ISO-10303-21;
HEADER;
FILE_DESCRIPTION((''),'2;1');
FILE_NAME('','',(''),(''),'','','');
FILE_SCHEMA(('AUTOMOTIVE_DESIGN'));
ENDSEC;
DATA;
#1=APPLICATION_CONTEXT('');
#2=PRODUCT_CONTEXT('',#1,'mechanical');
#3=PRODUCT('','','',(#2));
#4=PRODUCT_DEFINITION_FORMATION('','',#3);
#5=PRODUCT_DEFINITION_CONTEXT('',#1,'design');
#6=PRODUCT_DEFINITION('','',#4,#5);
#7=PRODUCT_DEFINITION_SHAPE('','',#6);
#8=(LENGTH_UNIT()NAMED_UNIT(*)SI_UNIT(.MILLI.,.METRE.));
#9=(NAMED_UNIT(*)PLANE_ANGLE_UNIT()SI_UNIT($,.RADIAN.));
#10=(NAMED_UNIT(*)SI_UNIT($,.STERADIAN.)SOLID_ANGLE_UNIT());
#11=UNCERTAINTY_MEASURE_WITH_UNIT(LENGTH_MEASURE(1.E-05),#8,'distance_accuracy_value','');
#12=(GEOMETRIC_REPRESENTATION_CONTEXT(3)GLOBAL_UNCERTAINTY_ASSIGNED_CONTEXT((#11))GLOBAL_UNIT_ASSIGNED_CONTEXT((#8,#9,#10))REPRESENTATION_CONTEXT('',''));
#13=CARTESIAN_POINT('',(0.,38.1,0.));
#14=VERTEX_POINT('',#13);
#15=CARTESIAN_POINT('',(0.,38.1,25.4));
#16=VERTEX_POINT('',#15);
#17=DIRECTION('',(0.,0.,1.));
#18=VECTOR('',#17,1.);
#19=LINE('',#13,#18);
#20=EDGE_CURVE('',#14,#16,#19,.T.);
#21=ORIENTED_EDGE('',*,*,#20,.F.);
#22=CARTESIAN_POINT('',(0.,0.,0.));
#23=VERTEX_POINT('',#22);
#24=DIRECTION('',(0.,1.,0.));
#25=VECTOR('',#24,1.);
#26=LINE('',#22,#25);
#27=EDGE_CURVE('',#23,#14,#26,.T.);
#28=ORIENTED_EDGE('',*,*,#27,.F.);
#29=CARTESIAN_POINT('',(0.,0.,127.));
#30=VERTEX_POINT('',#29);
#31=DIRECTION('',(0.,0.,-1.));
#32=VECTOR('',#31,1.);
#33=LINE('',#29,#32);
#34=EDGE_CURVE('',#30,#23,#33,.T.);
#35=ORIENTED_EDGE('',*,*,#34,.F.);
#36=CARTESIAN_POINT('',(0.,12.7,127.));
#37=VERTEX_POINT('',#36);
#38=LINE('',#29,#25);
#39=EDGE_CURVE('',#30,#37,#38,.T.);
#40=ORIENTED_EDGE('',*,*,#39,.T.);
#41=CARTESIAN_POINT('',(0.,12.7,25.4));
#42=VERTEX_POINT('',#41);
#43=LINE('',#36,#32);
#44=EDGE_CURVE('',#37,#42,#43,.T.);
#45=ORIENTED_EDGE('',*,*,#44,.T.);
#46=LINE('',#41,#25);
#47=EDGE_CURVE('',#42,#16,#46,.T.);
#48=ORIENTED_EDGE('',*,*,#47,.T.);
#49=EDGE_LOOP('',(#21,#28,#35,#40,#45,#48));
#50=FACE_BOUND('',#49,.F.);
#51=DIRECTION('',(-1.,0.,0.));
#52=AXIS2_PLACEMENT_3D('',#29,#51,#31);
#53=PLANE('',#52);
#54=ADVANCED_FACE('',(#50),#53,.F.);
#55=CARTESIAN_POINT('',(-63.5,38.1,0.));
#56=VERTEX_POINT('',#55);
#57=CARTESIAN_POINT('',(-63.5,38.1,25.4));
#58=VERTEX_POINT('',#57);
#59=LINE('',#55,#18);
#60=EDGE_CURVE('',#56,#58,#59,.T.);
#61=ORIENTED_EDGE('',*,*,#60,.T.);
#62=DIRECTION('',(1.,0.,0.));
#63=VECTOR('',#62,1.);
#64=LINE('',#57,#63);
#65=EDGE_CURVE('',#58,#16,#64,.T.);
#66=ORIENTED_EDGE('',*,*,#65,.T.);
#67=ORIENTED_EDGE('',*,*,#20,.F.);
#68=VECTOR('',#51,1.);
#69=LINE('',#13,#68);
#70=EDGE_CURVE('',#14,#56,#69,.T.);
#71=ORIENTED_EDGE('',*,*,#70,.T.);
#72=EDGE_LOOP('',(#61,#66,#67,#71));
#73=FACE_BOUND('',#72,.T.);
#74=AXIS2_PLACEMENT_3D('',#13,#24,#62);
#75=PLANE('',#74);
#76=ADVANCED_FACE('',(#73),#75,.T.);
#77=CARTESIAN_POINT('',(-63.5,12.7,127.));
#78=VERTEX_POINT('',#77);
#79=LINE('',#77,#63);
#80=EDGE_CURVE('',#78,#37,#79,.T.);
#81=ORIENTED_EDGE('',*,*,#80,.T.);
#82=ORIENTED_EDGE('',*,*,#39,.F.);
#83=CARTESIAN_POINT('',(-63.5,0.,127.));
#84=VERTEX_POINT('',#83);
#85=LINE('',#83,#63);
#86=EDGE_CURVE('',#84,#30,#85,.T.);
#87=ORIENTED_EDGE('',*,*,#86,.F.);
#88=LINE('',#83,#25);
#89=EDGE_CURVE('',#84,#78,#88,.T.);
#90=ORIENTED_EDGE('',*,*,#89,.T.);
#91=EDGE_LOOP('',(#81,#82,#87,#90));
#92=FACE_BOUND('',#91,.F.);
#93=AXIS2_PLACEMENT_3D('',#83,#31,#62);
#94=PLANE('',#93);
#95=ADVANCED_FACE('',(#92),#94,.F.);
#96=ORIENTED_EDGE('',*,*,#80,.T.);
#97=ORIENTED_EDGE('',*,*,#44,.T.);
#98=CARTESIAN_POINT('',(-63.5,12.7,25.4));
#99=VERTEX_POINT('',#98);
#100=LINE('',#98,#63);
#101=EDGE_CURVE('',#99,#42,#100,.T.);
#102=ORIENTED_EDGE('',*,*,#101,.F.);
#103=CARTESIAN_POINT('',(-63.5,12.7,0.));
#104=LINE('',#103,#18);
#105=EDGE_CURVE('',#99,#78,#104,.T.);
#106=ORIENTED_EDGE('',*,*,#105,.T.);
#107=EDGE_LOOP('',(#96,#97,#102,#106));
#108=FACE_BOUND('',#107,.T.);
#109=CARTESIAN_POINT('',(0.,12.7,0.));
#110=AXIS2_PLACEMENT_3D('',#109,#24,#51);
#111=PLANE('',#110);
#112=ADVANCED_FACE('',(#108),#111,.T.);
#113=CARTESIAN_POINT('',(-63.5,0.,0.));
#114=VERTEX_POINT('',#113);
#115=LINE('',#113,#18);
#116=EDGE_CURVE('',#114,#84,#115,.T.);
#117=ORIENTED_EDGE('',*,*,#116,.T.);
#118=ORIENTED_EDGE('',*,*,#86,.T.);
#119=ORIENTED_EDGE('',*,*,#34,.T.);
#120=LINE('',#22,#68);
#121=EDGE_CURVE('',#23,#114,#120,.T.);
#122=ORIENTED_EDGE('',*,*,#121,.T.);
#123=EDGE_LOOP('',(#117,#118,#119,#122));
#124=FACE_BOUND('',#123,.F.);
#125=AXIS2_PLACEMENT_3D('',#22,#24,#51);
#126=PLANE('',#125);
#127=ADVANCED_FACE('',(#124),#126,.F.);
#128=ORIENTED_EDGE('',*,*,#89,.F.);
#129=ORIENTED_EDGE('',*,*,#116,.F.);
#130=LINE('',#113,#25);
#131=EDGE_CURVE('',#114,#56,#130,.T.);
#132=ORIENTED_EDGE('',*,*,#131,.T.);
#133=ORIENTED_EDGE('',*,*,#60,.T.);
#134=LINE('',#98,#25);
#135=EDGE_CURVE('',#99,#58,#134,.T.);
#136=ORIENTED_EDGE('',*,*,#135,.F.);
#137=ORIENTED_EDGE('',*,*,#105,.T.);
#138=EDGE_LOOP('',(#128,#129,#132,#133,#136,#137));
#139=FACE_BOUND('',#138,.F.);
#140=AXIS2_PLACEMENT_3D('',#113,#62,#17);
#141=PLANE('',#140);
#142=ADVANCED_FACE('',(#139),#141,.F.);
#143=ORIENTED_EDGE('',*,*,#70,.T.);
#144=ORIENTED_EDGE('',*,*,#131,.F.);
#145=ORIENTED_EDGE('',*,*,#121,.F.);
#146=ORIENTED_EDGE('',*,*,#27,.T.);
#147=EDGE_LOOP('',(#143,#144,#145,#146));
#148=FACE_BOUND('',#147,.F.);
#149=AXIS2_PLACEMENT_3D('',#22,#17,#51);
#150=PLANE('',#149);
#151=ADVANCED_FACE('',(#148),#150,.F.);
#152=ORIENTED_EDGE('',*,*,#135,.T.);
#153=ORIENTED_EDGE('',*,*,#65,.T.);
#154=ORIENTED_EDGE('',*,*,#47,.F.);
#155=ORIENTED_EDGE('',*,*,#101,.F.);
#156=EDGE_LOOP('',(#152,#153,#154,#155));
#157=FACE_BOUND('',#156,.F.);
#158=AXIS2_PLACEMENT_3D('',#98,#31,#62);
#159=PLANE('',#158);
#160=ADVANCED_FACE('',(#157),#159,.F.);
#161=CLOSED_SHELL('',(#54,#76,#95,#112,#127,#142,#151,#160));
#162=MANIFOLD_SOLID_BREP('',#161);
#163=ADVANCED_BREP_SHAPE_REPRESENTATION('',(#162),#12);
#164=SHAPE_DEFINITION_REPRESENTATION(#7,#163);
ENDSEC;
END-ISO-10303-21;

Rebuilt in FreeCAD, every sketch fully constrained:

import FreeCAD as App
import Part
import Sketcher
Q = App.Units.Quantity


def add_polygon(sketch, points):
    """Adds a closed chain of lines whose ends are joined by coincident constraints."""
    first, n = sketch.GeometryCount, len(points)
    for a, b in zip(points, points[1:] + points[:1]):
        sketch.addGeometry(Part.LineSegment(App.Vector(*a, 0), App.Vector(*b, 0)), False)
    for i in range(n):
        sketch.addConstraint(Sketcher.Constraint("Coincident", first + i, 2, first + (i + 1) % n, 1))

doc = App.newDocument("Part")
body = doc.addObject("PartDesign::Body", "Body")

# Sketch on XZ plane
sketch1 = body.newObject("Sketcher::SketchObject", "Sketch")
sketch1.AttachmentSupport = (doc.getObject("XZ_Plane"), [""])
sketch1.MapMode = "FlatFace"
add_polygon(sketch1, [(0, 127), (0, 0), (-63.5, 0), (-63.5, 127)])  # lines 0-3
sketch1.addConstraint([
    Sketcher.Constraint("Vertical", 0),
    Sketcher.Constraint("Horizontal", 1),
    Sketcher.Constraint("Vertical", 2),
    Sketcher.Constraint("Horizontal", 3),
    Sketcher.Constraint("Coincident", 0, 2, -1, 1),
    Sketcher.Constraint("DistanceY", 0, 2, 0, 1, Q("5 in")),
    Sketcher.Constraint("DistanceX", 1, 2, 1, 1, Q("2.5 in")),
])
pad1 = body.newObject("PartDesign::Pad", "Pad")
pad1.Profile = sketch1
pad1.Length = Q("0.5 in")
pad1.Reversed = True

# Sketch on XZ plane
sketch2 = body.newObject("Sketcher::SketchObject", "Sketch001")
sketch2.AttachmentSupport = (doc.getObject("XZ_Plane"), [""])
sketch2.MapMode = "FlatFace"
sketch2.AttachmentOffset = App.Placement(App.Vector(0, 0, -0.5 * 25.4), App.Rotation())
add_polygon(sketch2, [(0, 25.4), (0, 0), (-63.5, 0), (-63.5, 25.4)])  # lines 0-3
sketch2.addConstraint([
    Sketcher.Constraint("Vertical", 0),
    Sketcher.Constraint("Horizontal", 1),
    Sketcher.Constraint("Vertical", 2),
    Sketcher.Constraint("Horizontal", 3),
    Sketcher.Constraint("Coincident", 0, 2, -1, 1),
    Sketcher.Constraint("DistanceY", 0, 2, 0, 1, Q("1 in")),
    Sketcher.Constraint("DistanceX", 1, 2, 1, 1, Q("2.5 in")),
])
pad2 = body.newObject("PartDesign::Pad", "Pad001")
pad2.Profile = sketch2
pad2.Length = Q("1 in")
pad2.Reversed = True

doc.recompute()
